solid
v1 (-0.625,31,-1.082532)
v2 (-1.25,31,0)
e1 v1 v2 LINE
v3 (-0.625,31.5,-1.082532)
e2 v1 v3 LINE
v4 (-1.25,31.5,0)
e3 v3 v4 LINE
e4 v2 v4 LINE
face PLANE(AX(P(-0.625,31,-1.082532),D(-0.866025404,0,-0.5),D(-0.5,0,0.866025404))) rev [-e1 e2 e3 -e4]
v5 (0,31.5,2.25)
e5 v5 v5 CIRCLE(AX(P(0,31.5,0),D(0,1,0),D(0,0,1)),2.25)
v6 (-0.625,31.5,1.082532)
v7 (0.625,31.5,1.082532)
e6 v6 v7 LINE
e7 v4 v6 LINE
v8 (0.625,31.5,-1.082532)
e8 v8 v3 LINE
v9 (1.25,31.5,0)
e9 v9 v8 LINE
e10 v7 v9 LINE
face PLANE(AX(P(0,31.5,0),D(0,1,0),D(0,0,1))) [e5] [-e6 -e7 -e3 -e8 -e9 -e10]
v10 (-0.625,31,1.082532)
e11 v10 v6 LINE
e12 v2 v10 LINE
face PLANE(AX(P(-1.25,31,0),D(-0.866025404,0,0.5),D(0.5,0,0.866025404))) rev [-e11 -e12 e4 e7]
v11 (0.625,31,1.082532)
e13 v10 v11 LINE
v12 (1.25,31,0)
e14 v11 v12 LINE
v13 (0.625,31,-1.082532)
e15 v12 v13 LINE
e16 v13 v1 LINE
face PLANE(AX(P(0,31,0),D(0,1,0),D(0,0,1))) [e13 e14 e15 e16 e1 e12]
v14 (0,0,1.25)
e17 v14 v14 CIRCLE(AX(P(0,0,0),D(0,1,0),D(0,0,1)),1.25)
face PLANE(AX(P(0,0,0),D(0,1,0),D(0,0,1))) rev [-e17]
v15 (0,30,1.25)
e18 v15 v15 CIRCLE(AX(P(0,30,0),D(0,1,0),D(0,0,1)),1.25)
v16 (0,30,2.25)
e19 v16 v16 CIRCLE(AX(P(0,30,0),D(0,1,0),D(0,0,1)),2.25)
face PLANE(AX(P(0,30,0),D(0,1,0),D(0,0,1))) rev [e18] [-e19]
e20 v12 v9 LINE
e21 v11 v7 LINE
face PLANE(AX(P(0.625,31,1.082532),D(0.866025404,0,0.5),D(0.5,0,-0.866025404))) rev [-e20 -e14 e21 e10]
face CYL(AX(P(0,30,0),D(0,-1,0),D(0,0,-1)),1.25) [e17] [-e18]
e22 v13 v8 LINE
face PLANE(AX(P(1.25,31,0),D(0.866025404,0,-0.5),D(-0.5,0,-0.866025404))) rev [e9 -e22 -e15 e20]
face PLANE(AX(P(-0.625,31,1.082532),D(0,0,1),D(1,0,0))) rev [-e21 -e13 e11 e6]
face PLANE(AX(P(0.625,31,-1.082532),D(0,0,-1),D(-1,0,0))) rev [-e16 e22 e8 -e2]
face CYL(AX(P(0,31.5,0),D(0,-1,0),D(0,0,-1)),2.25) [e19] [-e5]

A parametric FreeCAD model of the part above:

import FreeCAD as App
import Part
import Sketcher
from FreeCAD import Vector
Q = App.Units.Quantity

doc = App.newDocument("Part")
params = doc.addObject("Spreadsheet::Sheet", "Params")
for row, (alias, value) in enumerate([
    ("sketch1_diameter", "2.5 mm"),
    ("pad1_length", "30 mm"),
    ("sketch2_diameter", "4.5 mm"),
    ("pad2_length", "1.5 mm"),
    ("sketch3_width", "1.25 mm"),
    ("pocket1_length", "0.5 mm"),
], start=1):
    params.set(f"A{row}", alias)
    params.set(f"B{row}", "=" + value)
    params.setAlias(f"B{row}", alias)

body = doc.addObject("PartDesign::Body", "Body")

sketch1 = body.newObject("Sketcher::SketchObject", "Sketch")
sketch1.AttachmentSupport = (doc.getObject("XZ_Plane"), [""])
sketch1.MapMode = "FlatFace"
sketch1.addGeometry(Part.Circle(Vector(0, 0, 0), Vector(0, 0, 1), 1.2), False)
sketch1.addConstraint(Sketcher.Constraint("Coincident", 0, 3, -1, 1))
sketch1.addConstraint(Sketcher.Constraint("Diameter", 0, 2.5))
sketch1.setExpression("Constraints[1]", "Params.sketch1_diameter")
pad1 = body.newObject("PartDesign::Pad", "Pad")
pad1.Profile = sketch1
pad1.setExpression("Length", "Params.pad1_length")
pad1.Reversed = True

sketch2 = body.newObject("Sketcher::SketchObject", "Sketch001")
sketch2.AttachmentSupport = (doc.getObject("XZ_Plane"), [""])
sketch2.MapMode = "FlatFace"
sketch2.AttachmentOffset = App.Placement(Vector(0, 0, -30), App.Rotation())
sketch2.addGeometry(Part.Circle(Vector(0, 0, 0), Vector(0, 0, 1), 2.2), False)
sketch2.addConstraint(Sketcher.Constraint("Coincident", 0, 3, -1, 1))
sketch2.addConstraint(Sketcher.Constraint("Diameter", 0, 4.5))
sketch2.setExpression("Constraints[1]", "Params.sketch2_diameter")
pad2 = body.newObject("PartDesign::Pad", "Pad001")
pad2.Profile = sketch2
pad2.setExpression("Length", "Params.pad2_length")
pad2.Reversed = True

sketch3 = body.newObject("Sketcher::SketchObject", "Sketch002")
sketch3.AttachmentSupport = (doc.getObject("XZ_Plane"), [""])
sketch3.MapMode = "FlatFace"
sketch3.AttachmentOffset = App.Placement(Vector(0, 0, -31.5), App.Rotation())
sketch3.addGeometry(Part.LineSegment(Vector(1.2, 0, 0), Vector(0.6, -1.1, 0)), False)
sketch3.addGeometry(Part.LineSegment(Vector(0.6, -1.1, 0), Vector(-0.6, -1.1, 0)), False)
sketch3.addGeometry(Part.LineSegment(Vector(-0.6, -1.1, 0), Vector(-1.2, 0, 0)), False)
sketch3.addGeometry(Part.LineSegment(Vector(-1.2, 0, 0), Vector(-0.6, 1.1, 0)), False)
sketch3.addGeometry(Part.LineSegment(Vector(-0.6, 1.1, 0), Vector(0.6, 1.1, 0)), False)
sketch3.addGeometry(Part.LineSegment(Vector(0.6, 1.1, 0), Vector(1.2, 0, 0)), False)
sketch3.addConstraint(Sketcher.Constraint("Coincident", 0, 2, 1, 1))
sketch3.addConstraint(Sketcher.Constraint("Coincident", 1, 2, 2, 1))
sketch3.addConstraint(Sketcher.Constraint("Coincident", 2, 2, 3, 1))
sketch3.addConstraint(Sketcher.Constraint("Coincident", 3, 2, 4, 1))
sketch3.addConstraint(Sketcher.Constraint("Coincident", 4, 2, 5, 1))
sketch3.addConstraint(Sketcher.Constraint("Coincident", 5, 2, 0, 1))
sketch3.addConstraint(Sketcher.Constraint("Horizontal", 1))
sketch3.addConstraint(Sketcher.Constraint("Horizontal", 4))
sketch3.addConstraint(Sketcher.Constraint("Symmetric", 0, 2, 3, 2, -1, 1))
sketch3.addConstraint(Sketcher.Constraint("Symmetric", 2, 2, 5, 2, -1, 1))
sketch3.addConstraint(Sketcher.Constraint("PointOnObject", 2, 2, -1))
sketch3.addConstraint(Sketcher.Constraint("Parallel", 2, 5))
sketch3.addConstraint(Sketcher.Constraint("Vertical", 1, 2, 3, 2))
sketch3.addConstraint(Sketcher.Constraint("Angle", 0, Q("-120 deg")))
sketch3.addConstraint(Sketcher.Constraint("DistanceX", 1, 2, 1, 1, 1.25))
sketch3.addConstraint(Sketcher.Constraint("DistanceX", 2, 2, 5, 2, 2.5))
sketch3.setExpression("Constraints[14]", "Params.sketch3_width")
pocket1 = body.newObject("PartDesign::Pocket", "Pocket")
pocket1.Profile = sketch3
pocket1.setExpression("Length", "Params.pocket1_length")
pocket1.Reversed = True

doc.recompute()
